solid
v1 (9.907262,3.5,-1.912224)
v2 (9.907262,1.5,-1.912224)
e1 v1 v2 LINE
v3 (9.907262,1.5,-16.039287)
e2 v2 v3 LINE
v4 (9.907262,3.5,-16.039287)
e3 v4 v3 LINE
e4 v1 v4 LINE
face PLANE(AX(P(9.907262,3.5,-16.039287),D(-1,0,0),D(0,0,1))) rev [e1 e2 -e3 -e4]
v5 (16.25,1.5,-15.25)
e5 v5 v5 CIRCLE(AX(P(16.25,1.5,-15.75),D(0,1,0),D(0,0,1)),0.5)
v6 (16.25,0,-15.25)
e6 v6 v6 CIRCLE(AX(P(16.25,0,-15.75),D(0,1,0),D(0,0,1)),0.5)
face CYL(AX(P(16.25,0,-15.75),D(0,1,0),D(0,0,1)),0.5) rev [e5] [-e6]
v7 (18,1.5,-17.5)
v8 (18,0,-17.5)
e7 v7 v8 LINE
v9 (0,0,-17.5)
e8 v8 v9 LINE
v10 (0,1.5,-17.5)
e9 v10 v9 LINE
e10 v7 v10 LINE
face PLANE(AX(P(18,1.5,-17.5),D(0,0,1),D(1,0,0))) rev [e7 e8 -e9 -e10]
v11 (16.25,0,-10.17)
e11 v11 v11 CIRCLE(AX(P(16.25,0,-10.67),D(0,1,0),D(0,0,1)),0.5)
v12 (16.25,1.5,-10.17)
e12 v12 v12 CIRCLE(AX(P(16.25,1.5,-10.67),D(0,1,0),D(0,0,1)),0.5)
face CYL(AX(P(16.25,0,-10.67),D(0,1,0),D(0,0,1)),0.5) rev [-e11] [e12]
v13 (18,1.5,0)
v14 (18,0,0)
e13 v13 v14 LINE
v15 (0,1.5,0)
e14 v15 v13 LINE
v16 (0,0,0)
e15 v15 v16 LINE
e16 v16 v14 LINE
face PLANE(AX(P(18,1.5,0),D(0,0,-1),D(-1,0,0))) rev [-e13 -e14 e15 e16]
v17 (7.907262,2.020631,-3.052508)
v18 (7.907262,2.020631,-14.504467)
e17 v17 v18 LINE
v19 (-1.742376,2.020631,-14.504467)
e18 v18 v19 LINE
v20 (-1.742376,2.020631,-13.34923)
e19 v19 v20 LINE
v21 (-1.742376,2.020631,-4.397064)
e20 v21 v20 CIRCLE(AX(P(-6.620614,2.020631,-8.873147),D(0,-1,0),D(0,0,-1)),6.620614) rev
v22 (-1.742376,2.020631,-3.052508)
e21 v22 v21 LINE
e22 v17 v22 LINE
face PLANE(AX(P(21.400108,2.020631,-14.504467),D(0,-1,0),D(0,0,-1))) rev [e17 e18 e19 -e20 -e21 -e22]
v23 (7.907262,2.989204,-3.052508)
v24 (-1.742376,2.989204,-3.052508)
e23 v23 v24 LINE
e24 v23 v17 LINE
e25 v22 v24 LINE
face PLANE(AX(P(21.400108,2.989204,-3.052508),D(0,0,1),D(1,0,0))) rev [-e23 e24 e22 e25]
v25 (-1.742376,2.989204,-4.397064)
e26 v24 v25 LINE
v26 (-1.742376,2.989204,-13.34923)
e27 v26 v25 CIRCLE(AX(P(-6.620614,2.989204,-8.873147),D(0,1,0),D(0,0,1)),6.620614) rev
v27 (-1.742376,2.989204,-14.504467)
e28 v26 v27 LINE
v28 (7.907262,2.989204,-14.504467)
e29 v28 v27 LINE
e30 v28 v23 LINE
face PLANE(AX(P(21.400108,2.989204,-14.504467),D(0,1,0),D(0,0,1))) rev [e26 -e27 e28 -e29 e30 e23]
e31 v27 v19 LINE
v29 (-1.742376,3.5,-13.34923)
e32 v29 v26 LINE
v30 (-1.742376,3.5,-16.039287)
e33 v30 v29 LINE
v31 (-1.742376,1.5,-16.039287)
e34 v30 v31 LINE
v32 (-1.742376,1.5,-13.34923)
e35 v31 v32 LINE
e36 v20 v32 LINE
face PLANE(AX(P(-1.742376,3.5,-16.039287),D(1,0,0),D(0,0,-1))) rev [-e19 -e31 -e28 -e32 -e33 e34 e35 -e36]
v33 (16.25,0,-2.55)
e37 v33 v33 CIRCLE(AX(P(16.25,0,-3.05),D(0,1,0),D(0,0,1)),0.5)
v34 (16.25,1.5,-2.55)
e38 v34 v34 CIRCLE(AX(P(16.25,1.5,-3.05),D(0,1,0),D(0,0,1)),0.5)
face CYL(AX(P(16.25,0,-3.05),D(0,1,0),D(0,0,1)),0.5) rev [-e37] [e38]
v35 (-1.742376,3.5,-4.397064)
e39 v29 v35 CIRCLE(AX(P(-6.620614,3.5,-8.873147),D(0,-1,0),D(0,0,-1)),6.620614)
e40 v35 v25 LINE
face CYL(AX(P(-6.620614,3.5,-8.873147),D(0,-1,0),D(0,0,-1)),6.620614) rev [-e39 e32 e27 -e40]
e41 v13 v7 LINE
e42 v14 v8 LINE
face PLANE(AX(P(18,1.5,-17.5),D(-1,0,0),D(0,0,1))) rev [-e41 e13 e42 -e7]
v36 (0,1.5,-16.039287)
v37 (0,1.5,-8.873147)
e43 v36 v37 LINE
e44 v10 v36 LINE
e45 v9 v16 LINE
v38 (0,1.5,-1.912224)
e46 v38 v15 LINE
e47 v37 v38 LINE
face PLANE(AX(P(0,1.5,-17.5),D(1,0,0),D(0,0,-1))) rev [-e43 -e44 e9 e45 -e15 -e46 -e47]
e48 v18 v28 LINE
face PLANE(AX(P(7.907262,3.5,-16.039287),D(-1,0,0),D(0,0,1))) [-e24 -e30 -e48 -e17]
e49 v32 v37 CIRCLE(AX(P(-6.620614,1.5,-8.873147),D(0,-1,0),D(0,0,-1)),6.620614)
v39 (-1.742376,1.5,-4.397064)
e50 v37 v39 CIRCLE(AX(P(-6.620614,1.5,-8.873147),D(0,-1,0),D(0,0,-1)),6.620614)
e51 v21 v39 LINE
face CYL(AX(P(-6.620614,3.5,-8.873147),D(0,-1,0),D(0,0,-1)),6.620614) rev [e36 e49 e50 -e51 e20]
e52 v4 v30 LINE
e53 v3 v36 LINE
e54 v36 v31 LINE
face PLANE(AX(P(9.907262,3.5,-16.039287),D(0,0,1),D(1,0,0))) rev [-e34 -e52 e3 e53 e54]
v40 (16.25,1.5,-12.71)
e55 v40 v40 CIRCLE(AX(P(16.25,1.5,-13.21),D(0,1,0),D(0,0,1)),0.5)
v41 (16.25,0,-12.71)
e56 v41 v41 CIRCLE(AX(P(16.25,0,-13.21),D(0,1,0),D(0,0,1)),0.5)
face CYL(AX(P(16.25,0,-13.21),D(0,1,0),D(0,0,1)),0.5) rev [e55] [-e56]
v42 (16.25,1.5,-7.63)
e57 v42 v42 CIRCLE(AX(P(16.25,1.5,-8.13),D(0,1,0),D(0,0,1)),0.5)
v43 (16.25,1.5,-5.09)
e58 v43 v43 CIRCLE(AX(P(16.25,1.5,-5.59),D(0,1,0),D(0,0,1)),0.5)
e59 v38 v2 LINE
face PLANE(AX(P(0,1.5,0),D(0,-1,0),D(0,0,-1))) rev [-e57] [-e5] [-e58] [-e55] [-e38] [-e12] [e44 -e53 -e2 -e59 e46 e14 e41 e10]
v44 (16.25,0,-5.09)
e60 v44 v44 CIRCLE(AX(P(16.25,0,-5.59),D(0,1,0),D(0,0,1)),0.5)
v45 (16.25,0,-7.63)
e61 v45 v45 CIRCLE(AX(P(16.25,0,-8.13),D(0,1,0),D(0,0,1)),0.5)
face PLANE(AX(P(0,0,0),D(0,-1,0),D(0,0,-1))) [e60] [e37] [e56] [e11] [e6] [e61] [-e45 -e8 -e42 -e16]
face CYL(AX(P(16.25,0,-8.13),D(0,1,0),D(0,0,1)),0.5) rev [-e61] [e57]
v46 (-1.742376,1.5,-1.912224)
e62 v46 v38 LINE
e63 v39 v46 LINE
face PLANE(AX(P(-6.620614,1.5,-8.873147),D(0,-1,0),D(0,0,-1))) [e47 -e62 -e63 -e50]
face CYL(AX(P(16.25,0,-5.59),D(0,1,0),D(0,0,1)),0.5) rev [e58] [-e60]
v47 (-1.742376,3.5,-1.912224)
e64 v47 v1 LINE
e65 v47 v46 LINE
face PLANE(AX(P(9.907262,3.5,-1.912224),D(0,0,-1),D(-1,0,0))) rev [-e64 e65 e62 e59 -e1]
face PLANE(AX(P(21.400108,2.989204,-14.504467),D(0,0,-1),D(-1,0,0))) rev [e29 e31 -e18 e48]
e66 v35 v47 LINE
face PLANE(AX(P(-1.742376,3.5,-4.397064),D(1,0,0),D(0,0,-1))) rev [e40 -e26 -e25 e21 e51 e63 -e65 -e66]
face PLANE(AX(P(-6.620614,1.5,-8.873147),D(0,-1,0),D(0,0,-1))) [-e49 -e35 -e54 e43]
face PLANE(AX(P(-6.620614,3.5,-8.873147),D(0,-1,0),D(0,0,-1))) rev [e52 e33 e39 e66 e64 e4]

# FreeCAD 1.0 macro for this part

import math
import FreeCAD as App
import Part
import Sketcher
from FreeCAD import Vector
Q = App.Units.Quantity

doc = App.newDocument("Part")
body = doc.addObject("PartDesign::Body", "Body")

# Sketch on XZ plane
sketch1 = doc.addObject("Sketcher::SketchObject", "Sketch")
body.addObject(sketch1)
sketch1.AttachmentSupport = (doc.XZ_Plane, [""])
sketch1.MapMode = "FlatFace"
sketch1.addGeometry(Part.LineSegment(Vector(0, -17.5, 0), Vector(0, 0, 0)), False)
sketch1.addGeometry(Part.LineSegment(Vector(0, 0, 0), Vector(18, 0, 0)), False)
sketch1.addGeometry(Part.LineSegment(Vector(18, 0, 0), Vector(18, -17.5, 0)), False)
sketch1.addGeometry(Part.LineSegment(Vector(18, -17.5, 0), Vector(0, -17.5, 0)), False)
sketch1.addConstraint(Sketcher.Constraint("Coincident", 0, 2, 1, 1))
sketch1.addConstraint(Sketcher.Constraint("Coincident", 1, 2, 2, 1))
sketch1.addConstraint(Sketcher.Constraint("Coincident", 2, 2, 3, 1))
sketch1.addConstraint(Sketcher.Constraint("Coincident", 3, 2, 0, 1))
sketch1.addConstraint(Sketcher.Constraint("Vertical", 0))
sketch1.addConstraint(Sketcher.Constraint("Horizontal", 1))
sketch1.addConstraint(Sketcher.Constraint("Vertical", 2))
sketch1.addConstraint(Sketcher.Constraint("Horizontal", 3))
sketch1.addConstraint(Sketcher.Constraint("Coincident", 0, 2, -1, 1))
sketch1.addConstraint(Sketcher.Constraint("DistanceX", 1, 1, 1, 2, Q("18 mm")))
sketch1.addConstraint(Sketcher.Constraint("DistanceY", 0, 1, 0, 2, Q("17.5 mm")))
pad1 = doc.addObject("PartDesign::Pad", "Pad")
body.addObject(pad1)
pad1.Profile = sketch1
pad1.Length = 1.5
pad1.Reversed = True

# Sketch on XZ plane
sketch2 = doc.addObject("Sketcher::SketchObject", "Sketch001")
body.addObject(sketch2)
sketch2.AttachmentSupport = (doc.XZ_Plane, [""])
sketch2.MapMode = "FlatFace"
sketch2.AttachmentOffset = App.Placement(Vector(0, 0, -1.5), App.Rotation())
sketch2.addGeometry(Part.LineSegment(Vector(-1.742376, -4.397064, 0), Vector(-1.742376, -1.912224, 0)), False)
sketch2.addGeometry(Part.LineSegment(Vector(-1.742376, -1.912224, 0), Vector(9.907262, -1.912224, 0)), False)
sketch2.addGeometry(Part.LineSegment(Vector(9.907262, -1.912224, 0), Vector(9.907262, -16.039287, 0)), False)
sketch2.addGeometry(Part.LineSegment(Vector(9.907262, -16.039287, 0), Vector(-1.742376, -16.039287, 0)), False)
sketch2.addGeometry(Part.LineSegment(Vector(-1.742376, -16.039287, 0), Vector(-1.742376, -13.34923, 0)), False)
sketch2.addGeometry(Part.ArcOfCircle(Part.Circle(Vector(-6.620614, -8.873147, 0), Vector(0, 0, 1), 6.620614), math.radians(-42.538292), math.radians(42.538292)), False)
sketch2.addConstraint(Sketcher.Constraint("Coincident", 0, 2, 1, 1))
sketch2.addConstraint(Sketcher.Constraint("Coincident", 1, 2, 2, 1))
sketch2.addConstraint(Sketcher.Constraint("Coincident", 2, 2, 3, 1))
sketch2.addConstraint(Sketcher.Constraint("Coincident", 3, 2, 4, 1))
sketch2.addConstraint(Sketcher.Constraint("Coincident", 4, 2, 5, 1))
sketch2.addConstraint(Sketcher.Constraint("Coincident", 5, 2, 0, 1))
sketch2.addConstraint(Sketcher.Constraint("Vertical", 0))
sketch2.addConstraint(Sketcher.Constraint("Horizontal", 1))
sketch2.addConstraint(Sketcher.Constraint("Vertical", 2))
sketch2.addConstraint(Sketcher.Constraint("Horizontal", 3))
sketch2.addConstraint(Sketcher.Constraint("Vertical", 4))
sketch2.addConstraint(Sketcher.Constraint("Vertical", 0, 2, 3, 2))
sketch2.addConstraint(Sketcher.Constraint("Radius", 5, Q("6.620614 mm")))
sketch2.addConstraint(Sketcher.Constraint("DistanceY", 0, 1, 0, 2, Q("2.48484 mm")))
sketch2.addConstraint(Sketcher.Constraint("DistanceX", 1, 1, 1, 2, Q("11.649638 mm")))
sketch2.addConstraint(Sketcher.Constraint("DistanceY", 2, 2, 2, 1, Q("14.127063 mm")))
sketch2.addConstraint(Sketcher.Constraint("DistanceY", 4, 1, 4, 2, Q("2.690056 mm")))
sketch2.addConstraint(Sketcher.Constraint("DistanceY", 4, 2, -1, 1, Q("13.34923 mm")))
sketch2.addConstraint(Sketcher.Constraint("DistanceX", 5, 3, -1, 1, Q("6.620614 mm")))
pad2 = doc.addObject("PartDesign::Pad", "Pad001")
body.addObject(pad2)
pad2.Profile = sketch2
pad2.Length = 2
pad2.Reversed = True

# Sketch on XZ plane
sketch3 = doc.addObject("Sketcher::SketchObject", "Sketch002")
body.addObject(sketch3)
sketch3.AttachmentSupport = (doc.XZ_Plane, [""])
sketch3.MapMode = "FlatFace"
sketch3.AttachmentOffset = App.Placement(Vector(0, 0, -1.5), App.Rotation())
sketch3.addGeometry(Part.Circle(Vector(16.25, -15.75, 0), Vector(0, 0, 1), 0.5), False)
sketch3.addGeometry(Part.Circle(Vector(16.25, -13.21, 0), Vector(0, 0, 1), 0.5), False)
sketch3.addGeometry(Part.Circle(Vector(16.25, -10.67, 0), Vector(0, 0, 1), 0.5), False)
sketch3.addGeometry(Part.Circle(Vector(16.25, -8.13, 0), Vector(0, 0, 1), 0.5), False)
sketch3.addGeometry(Part.Circle(Vector(16.25, -5.59, 0), Vector(0, 0, 1), 0.5), False)
sketch3.addGeometry(Part.Circle(Vector(16.25, -3.05, 0), Vector(0, 0, 1), 0.5), False)
sketch3.addConstraint(Sketcher.Constraint("Equal", 0, 1))
sketch3.addConstraint(Sketcher.Constraint("Equal", 1, 2))
sketch3.addConstraint(Sketcher.Constraint("Equal", 2, 3))
sketch3.addConstraint(Sketcher.Constraint("Equal", 3, 4))
sketch3.addConstraint(Sketcher.Constraint("Equal", 4, 5))
sketch3.addConstraint(Sketcher.Constraint("Vertical", 0, 3, 1, 3))
sketch3.addConstraint(Sketcher.Constraint("Vertical", 1, 3, 2, 3))
sketch3.addConstraint(Sketcher.Constraint("Vertical", 2, 3, 3, 3))
sketch3.addConstraint(Sketcher.Constraint("Vertical", 3, 3, 4, 3))
sketch3.addConstraint(Sketcher.Constraint("Vertical", 4, 3, 5, 3))
sketch3.addConstraint(Sketcher.Constraint("Diameter", 0, Q("1 mm")))
sketch3.addConstraint(Sketcher.Constraint("DistanceY", 0, 3, 5, 3, Q("12.7 mm")))
sketch3.addConstraint(Sketcher.Constraint("DistanceX", -1, 1, 0, 3, Q("16.25 mm")))
sketch3.addConstraint(Sketcher.Constraint("DistanceY", 0, 3, -1, 1, Q("15.75 mm")))
sketch3.addConstraint(Sketcher.Constraint("DistanceY", 1, 3, -1, 1, Q("13.21 mm")))
sketch3.addConstraint(Sketcher.Constraint("DistanceY", 2, 3, -1, 1, Q("10.67 mm")))
sketch3.addConstraint(Sketcher.Constraint("DistanceY", 3, 3, -1, 1, Q("8.13 mm")))
sketch3.addConstraint(Sketcher.Constraint("DistanceY", 4, 3, -1, 1, Q("5.59 mm")))
pocket1 = doc.addObject("PartDesign::Pocket", "Pocket")
body.addObject(pocket1)
pocket1.Profile = sketch3
pocket1.Type = "ThroughAll"
pocket1.Reversed = True

# Sketch on YZ plane
sketch4 = doc.addObject("Sketcher::SketchObject", "Sketch003")
body.addObject(sketch4)
sketch4.AttachmentSupport = (doc.YZ_Plane, [""])
sketch4.MapMode = "FlatFace"
sketch4.AttachmentOffset = App.Placement(Vector(0, 0, -1.742376), App.Rotation())
sketch4.addGeometry(Part.LineSegment(Vector(2.989204, -14.504467, 0), Vector(2.020631, -14.504467, 0)), False)
sketch4.addGeometry(Part.LineSegment(Vector(2.020631, -14.504467, 0), Vector(2.020631, -3.052508, 0)), False)
sketch4.addGeometry(Part.LineSegment(Vector(2.020631, -3.052508, 0), Vector(2.989204, -3.052508, 0)), False)
sketch4.addGeometry(Part.LineSegment(Vector(2.989204, -3.052508, 0), Vector(2.989204, -14.504467, 0)), False)
sketch4.addConstraint(Sketcher.Constraint("Coincident", 0, 2, 1, 1))
sketch4.addConstraint(Sketcher.Constraint("Coincident", 1, 2, 2, 1))
sketch4.addConstraint(Sketcher.Constraint("Coincident", 2, 2, 3, 1))
sketch4.addConstraint(Sketcher.Constraint("Coincident", 3, 2, 0, 1))
sketch4.addConstraint(Sketcher.Constraint("Horizontal", 0))
sketch4.addConstraint(Sketcher.Constraint("Vertical", 1))
sketch4.addConstraint(Sketcher.Constraint("Horizontal", 2))
sketch4.addConstraint(Sketcher.Constraint("Vertical", 3))
sketch4.addConstraint(Sketcher.Constraint("DistanceY", 1, 1, 1, 2, Q("11.451959 mm")))
sketch4.addConstraint(Sketcher.Constraint("DistanceX", 0, 2, 0, 1, Q("0.968574 mm")))
sketch4.addConstraint(Sketcher.Constraint("DistanceX", -1, 1, 0, 2, Q("2.020631 mm")))
sketch4.addConstraint(Sketcher.Constraint("DistanceY", 1, 2, -1, 1, Q("3.052508 mm")))
pocket2 = doc.addObject("PartDesign::Pocket", "Pocket001")
body.addObject(pocket2)
pocket2.Profile = sketch4
pocket2.Length = 9.649638
pocket2.Reversed = True

doc.recompute()
